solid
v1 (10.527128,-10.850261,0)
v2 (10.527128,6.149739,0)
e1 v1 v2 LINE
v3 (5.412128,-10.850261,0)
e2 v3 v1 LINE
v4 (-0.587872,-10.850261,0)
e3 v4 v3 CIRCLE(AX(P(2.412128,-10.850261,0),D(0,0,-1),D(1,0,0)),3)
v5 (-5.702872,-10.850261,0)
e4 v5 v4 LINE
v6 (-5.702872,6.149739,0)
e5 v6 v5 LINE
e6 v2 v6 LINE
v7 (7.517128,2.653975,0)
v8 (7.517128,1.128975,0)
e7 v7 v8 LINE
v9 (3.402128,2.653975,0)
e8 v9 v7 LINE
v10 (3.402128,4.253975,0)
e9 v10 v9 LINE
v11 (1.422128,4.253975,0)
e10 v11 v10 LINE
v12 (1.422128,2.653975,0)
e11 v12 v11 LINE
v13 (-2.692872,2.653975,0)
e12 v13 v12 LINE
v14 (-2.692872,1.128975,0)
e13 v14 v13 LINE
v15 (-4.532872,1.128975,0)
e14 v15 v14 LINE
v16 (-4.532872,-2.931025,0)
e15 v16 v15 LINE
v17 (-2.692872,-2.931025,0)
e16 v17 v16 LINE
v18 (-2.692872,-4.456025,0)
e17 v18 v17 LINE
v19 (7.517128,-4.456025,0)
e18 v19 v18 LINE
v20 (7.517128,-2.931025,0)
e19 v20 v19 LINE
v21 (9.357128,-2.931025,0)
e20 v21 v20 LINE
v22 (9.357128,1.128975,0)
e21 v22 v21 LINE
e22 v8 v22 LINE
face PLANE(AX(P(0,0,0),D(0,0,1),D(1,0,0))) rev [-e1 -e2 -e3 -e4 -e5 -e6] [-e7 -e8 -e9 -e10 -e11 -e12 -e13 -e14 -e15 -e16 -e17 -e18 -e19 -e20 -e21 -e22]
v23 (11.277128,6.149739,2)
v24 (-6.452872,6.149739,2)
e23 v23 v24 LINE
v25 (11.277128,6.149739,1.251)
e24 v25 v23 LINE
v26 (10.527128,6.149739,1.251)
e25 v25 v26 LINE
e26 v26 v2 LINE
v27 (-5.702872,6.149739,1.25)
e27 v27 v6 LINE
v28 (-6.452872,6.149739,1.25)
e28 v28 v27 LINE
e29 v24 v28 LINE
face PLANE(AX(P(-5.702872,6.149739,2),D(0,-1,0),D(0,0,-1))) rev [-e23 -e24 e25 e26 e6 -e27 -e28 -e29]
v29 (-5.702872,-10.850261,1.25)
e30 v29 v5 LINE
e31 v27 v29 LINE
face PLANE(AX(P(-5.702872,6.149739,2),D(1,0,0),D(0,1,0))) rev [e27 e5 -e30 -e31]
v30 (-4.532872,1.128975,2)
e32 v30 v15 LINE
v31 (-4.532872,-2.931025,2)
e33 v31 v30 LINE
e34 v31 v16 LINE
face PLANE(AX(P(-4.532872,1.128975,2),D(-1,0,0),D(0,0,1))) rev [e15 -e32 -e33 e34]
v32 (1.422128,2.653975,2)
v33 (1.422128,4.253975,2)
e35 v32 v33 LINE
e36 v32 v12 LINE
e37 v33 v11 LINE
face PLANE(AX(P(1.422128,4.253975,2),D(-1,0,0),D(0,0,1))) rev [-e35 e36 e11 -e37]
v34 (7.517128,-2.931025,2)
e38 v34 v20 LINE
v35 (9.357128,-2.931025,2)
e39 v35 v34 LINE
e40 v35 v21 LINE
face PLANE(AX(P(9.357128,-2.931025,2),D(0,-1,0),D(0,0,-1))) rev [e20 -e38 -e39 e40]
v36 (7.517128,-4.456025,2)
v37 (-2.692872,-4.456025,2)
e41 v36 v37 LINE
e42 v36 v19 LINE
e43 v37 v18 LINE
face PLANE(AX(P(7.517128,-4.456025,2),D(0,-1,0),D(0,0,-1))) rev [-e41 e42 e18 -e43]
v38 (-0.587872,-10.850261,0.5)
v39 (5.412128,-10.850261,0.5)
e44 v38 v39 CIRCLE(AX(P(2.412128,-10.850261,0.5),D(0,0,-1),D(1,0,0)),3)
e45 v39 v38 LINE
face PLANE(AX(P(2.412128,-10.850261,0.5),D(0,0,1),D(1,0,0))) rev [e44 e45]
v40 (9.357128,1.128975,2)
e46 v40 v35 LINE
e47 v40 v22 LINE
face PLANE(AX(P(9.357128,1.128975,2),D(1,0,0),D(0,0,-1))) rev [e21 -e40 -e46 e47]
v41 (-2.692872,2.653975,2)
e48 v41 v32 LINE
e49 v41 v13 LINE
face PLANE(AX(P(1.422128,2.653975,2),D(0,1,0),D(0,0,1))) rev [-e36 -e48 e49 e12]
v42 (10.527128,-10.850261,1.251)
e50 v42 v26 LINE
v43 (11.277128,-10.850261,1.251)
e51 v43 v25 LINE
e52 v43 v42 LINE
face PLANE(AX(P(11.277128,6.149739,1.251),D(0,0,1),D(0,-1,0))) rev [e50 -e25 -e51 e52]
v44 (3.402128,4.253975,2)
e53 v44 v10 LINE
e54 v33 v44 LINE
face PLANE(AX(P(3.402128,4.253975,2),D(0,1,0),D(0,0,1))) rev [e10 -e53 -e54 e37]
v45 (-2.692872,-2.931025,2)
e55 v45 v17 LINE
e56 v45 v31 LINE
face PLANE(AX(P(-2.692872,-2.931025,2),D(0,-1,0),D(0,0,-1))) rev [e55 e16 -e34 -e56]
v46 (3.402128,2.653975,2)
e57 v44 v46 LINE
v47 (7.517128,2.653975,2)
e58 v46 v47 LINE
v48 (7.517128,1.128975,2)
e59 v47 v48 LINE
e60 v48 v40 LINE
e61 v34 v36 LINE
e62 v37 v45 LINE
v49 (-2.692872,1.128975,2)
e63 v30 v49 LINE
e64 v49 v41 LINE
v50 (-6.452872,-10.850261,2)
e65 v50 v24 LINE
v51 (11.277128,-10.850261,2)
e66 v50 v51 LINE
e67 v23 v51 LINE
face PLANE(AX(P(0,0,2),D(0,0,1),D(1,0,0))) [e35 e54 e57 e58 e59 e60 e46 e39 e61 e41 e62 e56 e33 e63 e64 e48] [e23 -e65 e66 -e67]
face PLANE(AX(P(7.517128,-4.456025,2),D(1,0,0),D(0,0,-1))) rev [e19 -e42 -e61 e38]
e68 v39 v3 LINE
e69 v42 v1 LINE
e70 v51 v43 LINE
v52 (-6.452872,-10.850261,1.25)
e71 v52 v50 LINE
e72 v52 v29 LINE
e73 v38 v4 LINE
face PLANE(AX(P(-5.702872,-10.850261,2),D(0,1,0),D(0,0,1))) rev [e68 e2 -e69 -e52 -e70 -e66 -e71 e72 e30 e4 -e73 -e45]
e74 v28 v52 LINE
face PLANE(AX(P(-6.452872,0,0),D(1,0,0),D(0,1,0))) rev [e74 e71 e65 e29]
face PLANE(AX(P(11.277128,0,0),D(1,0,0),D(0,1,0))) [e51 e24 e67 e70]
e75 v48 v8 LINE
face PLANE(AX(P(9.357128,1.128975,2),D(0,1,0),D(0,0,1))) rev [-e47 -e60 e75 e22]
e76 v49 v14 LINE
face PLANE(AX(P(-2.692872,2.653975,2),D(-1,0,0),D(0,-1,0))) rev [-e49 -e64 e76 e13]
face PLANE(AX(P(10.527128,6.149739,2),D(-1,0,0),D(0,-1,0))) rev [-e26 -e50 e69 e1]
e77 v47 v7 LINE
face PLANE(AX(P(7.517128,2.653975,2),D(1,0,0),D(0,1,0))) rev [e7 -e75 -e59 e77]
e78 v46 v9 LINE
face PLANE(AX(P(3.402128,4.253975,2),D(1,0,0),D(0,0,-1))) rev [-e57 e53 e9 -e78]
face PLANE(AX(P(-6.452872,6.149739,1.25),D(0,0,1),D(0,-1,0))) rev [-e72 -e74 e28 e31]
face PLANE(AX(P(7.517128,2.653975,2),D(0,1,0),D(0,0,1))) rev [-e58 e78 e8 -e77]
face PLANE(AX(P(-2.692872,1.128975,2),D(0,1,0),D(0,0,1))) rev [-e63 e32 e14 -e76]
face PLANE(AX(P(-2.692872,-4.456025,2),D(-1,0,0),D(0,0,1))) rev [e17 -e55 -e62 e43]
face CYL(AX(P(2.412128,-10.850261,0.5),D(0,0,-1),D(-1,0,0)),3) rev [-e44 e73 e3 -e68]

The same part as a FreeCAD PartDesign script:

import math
import FreeCAD as App
import Part
import Sketcher

V = App.Vector


def add_polygon(sketch, points):
    """Adds a closed chain of lines whose ends are joined by coincident constraints."""
    first, n = sketch.GeometryCount, len(points)
    for a, b in zip(points, points[1:] + points[:1]):
        sketch.addGeometry(Part.LineSegment(App.Vector(*a, 0), App.Vector(*b, 0)), False)
    for i in range(n):
        sketch.addConstraint(Sketcher.Constraint("Coincident", first + i, 2, first + (i + 1) % n, 1))

doc = App.newDocument("Part")
body = doc.addObject("PartDesign::Body", "Body")

# Sketch on XY plane
sketch1 = body.newObject("Sketcher::SketchObject", "Sketch")
sketch1.AttachmentSupport = (doc.getObject("XY_Plane"), [""])
sketch1.MapMode = "FlatFace"
add_polygon(sketch1, [(-6, 6), (-6, -11), (11, -11), (11, 6)])  # lines 0-3
sketch1.addConstraint([
    Sketcher.Constraint("Vertical", 0),
    Sketcher.Constraint("Horizontal", 1),
    Sketcher.Constraint("Vertical", 2),
    Sketcher.Constraint("Horizontal", 3),
    Sketcher.Constraint("DistanceY", 0, 2, 0, 1, 17.0),
    Sketcher.Constraint("DistanceX", 1, 1, 1, 2, 16.23),
    Sketcher.Constraint("DistanceY", 0, 2, -1, 1, 10.850261),
    Sketcher.Constraint("DistanceX", 0, 2, -1, 1, 5.702872),
])
pad1 = body.newObject("PartDesign::Pad", "Pad")
pad1.Profile = sketch1
pad1.Length = 2

# Sketch on YZ plane
sketch2 = body.newObject("Sketcher::SketchObject", "Sketch001")
sketch2.AttachmentSupport = (doc.getObject("YZ_Plane"), [""])
sketch2.MapMode = "FlatFace"
sketch2.AttachmentOffset = App.Placement(V(0, 0, 10.527128), App.Rotation())
add_polygon(sketch2, [(6.1, 2), (-10.9, 2), (-10.9, 1.3), (6.1, 1.3)])  # lines 0-3
sketch2.addConstraint([
    Sketcher.Constraint("Horizontal", 0),
    Sketcher.Constraint("Vertical", 1),
    Sketcher.Constraint("Horizontal", 2),
    Sketcher.Constraint("Vertical", 3),
    Sketcher.Constraint("DistanceX", 0, 2, 0, 1, 17.0),
    Sketcher.Constraint("DistanceY", -1, 1, 0, 2, 2.0),
    Sketcher.Constraint("DistanceY", 1, 2, 1, 1, 0.749),
    Sketcher.Constraint("DistanceX", 0, 2, -1, 1, 10.850261),
])
pad2 = body.newObject("PartDesign::Pad", "Pad001")
pad2.Profile = sketch2
pad2.Length = 0.75

# Sketch on YZ plane
sketch3 = body.newObject("Sketcher::SketchObject", "Sketch002")
sketch3.AttachmentSupport = (doc.getObject("YZ_Plane"), [""])
sketch3.MapMode = "FlatFace"
sketch3.AttachmentOffset = App.Placement(V(0, 0, -5.702872), App.Rotation())
add_polygon(sketch3, [(6.1, 1.2), (-10.9, 1.2), (-10.9, 2), (6.1, 2)])  # lines 0-3
sketch3.addConstraint([
    Sketcher.Constraint("Horizontal", 0),
    Sketcher.Constraint("Vertical", 1),
    Sketcher.Constraint("Horizontal", 2),
    Sketcher.Constraint("Vertical", 3),
    Sketcher.Constraint("DistanceX", 0, 2, 0, 1, 17.0),
    Sketcher.Constraint("DistanceY", -1, 1, 1, 2, 2.0),
    Sketcher.Constraint("DistanceY", 1, 1, 1, 2, 0.75),
    Sketcher.Constraint("DistanceX", 0, 2, -1, 1, 10.850261),
])
pad3 = body.newObject("PartDesign::Pad", "Pad002")
pad3.Profile = sketch3
pad3.Length = 0.75
pad3.Reversed = True

# Sketch on XY plane
sketch4 = body.newObject("Sketcher::SketchObject", "Sketch003")
sketch4.AttachmentSupport = (doc.getObject("XY_Plane"), [""])
sketch4.MapMode = "FlatFace"
add_polygon(sketch4, [(3.4, 2.7), (7.5, 2.7), (7.5, 1.1), (9.4, 1.1), (9.4, -2.9), (7.5, -2.9), (7.5, -4.5), (-2.7, -4.5), (-2.7, -2.9), (-4.5, -2.9), (-4.5, 1.1), (-2.7, 1.1), (-2.7, 2.7), (1.4, 2.7), (1.4, 4.3), (3.4, 4.3)])  # lines 0-15
sketch4.addConstraint([
    Sketcher.Constraint("Horizontal", 0),
    Sketcher.Constraint("Vertical", 1),
    Sketcher.Constraint("Horizontal", 2),
    Sketcher.Constraint("Vertical", 3),
    Sketcher.Constraint("Horizontal", 4),
    Sketcher.Constraint("Vertical", 5),
    Sketcher.Constraint("Horizontal", 6),
    Sketcher.Constraint("Vertical", 7),
    Sketcher.Constraint("Horizontal", 8),
    Sketcher.Constraint("Vertical", 9),
    Sketcher.Constraint("Horizontal", 10),
    Sketcher.Constraint("Vertical", 11),
    Sketcher.Constraint("Horizontal", 12),
    Sketcher.Constraint("Vertical", 13),
    Sketcher.Constraint("Horizontal", 14),
    Sketcher.Constraint("Vertical", 15),
    Sketcher.Constraint("Horizontal", 4, 2, 7, 2),
    Sketcher.Constraint("Horizontal", 2, 2, 9, 2),
    Sketcher.Constraint("Horizontal", 0, 2, 11, 2),
    Sketcher.Constraint("Vertical", 1, 2, 4, 2),
    Sketcher.Constraint("Vertical", 7, 2, 10, 2),
    Sketcher.Constraint("Equal", 4, 8),
    Sketcher.Constraint("Equal", 0, 12),
    Sketcher.Constraint("Equal", 1, 5),
    Sketcher.Constraint("DistanceY", 13, 1, 13, 2, 1.6),
    Sketcher.Constraint("DistanceX", 2, 1, 2, 2, 1.84),
    Sketcher.Constraint("DistanceX", 6, 2, 6, 1, 10.21),
    Sketcher.Constraint("DistanceX", 14, 1, 14, 2, 1.98),
    Sketcher.Constraint("DistanceY", 3, 2, 3, 1, 4.06),
    Sketcher.Constraint("DistanceY", 1, 2, 1, 1, 1.525),
    Sketcher.Constraint("DistanceX", -1, 1, 0, 2, 7.517128),
    Sketcher.Constraint("DistanceY", -1, 1, 0, 2, 2.653975),
])
pocket1 = body.newObject("PartDesign::Pocket", "Pocket")
pocket1.Profile = sketch4
pocket1.Type = "ThroughAll"
pocket1.Reversed = True

# Sketch on XY plane
sketch5 = body.newObject("Sketcher::SketchObject", "Sketch004")
sketch5.AttachmentSupport = (doc.getObject("XY_Plane"), [""])
sketch5.MapMode = "FlatFace"
sketch5.addGeometry([
    Part.LineSegment(V(5.4, -10.9, 0), V(-0.6, -10.9, 0)),
    Part.ArcOfCircle(Part.Circle(V(2.4, -10.9, 0), V(0, 0, 1), 3), math.radians(0), math.radians(180)),
], False)
sketch5.addConstraint([
    Sketcher.Constraint("Coincident", 0, 1, 1, 1),
    Sketcher.Constraint("Coincident", 1, 2, 0, 2),
    Sketcher.Constraint("Horizontal", 0),
    Sketcher.Constraint("Horizontal", 1, 3, 0, 1),
    Sketcher.Constraint("Radius", 1, 3.0),
    Sketcher.Constraint("DistanceY", 1, 3, -1, 1, 10.850261),
    Sketcher.Constraint("DistanceX", -1, 1, 1, 3, 2.412128),
])
pocket2 = body.newObject("PartDesign::Pocket", "Pocket001")
pocket2.Profile = sketch5
pocket2.Length = 0.5
pocket2.Reversed = True

doc.recompute()
